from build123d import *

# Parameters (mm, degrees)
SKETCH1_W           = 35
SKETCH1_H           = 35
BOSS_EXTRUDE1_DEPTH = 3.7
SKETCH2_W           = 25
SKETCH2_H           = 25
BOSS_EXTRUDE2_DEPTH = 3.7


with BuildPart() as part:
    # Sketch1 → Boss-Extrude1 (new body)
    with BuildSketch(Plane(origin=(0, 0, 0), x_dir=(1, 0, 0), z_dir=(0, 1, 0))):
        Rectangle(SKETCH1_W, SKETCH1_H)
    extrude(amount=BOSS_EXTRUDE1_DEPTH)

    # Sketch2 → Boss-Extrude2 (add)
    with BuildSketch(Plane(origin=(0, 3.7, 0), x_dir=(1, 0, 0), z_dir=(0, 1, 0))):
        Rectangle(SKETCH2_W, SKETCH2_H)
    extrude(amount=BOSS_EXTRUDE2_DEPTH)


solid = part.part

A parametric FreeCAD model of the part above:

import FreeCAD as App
import Part
import Sketcher
Q = App.Units.Quantity

doc = App.newDocument("Part")
params = doc.addObject("Spreadsheet::Sheet", "Params")
for row, (alias, value) in enumerate([
    ("sketch1_width", "35 mm"),
    ("pad1_length", "3.7 mm"),
    ("sketch2_width", "25 mm"),
    ("pad2_length", "3.7 mm"),
], start=1):
    params.set(f"A{row}", alias)
    params.set(f"B{row}", "=" + value)
    params.setAlias(f"B{row}", alias)

body = doc.addObject("PartDesign::Body", "Body")

# Sketch on XZ plane
sketch1 = body.newObject("Sketcher::SketchObject", "Sketch")
sketch1.AttachmentSupport = (doc.getObject("XZ_Plane"), [""])
sketch1.MapMode = "FlatFace"
sketch1.addGeometry(Part.LineSegment(App.Vector(-18, -18, 0), App.Vector(-18, 18, 0)), False)
sketch1.addGeometry(Part.LineSegment(App.Vector(-18, 18, 0), App.Vector(18, 18, 0)), False)
sketch1.addGeometry(Part.LineSegment(App.Vector(18, 18, 0), App.Vector(18, -18, 0)), False)
sketch1.addGeometry(Part.LineSegment(App.Vector(18, -18, 0), App.Vector(-18, -18, 0)), False)
sketch1.addConstraint(Sketcher.Constraint("Coincident", 0, 2, 1, 1))
sketch1.addConstraint(Sketcher.Constraint("Coincident", 1, 2, 2, 1))
sketch1.addConstraint(Sketcher.Constraint("Coincident", 2, 2, 3, 1))
sketch1.addConstraint(Sketcher.Constraint("Coincident", 3, 2, 0, 1))
sketch1.addConstraint(Sketcher.Constraint("Vertical", 0))
sketch1.addConstraint(Sketcher.Constraint("Horizontal", 1))
sketch1.addConstraint(Sketcher.Constraint("Vertical", 2))
sketch1.addConstraint(Sketcher.Constraint("Horizontal", 3))
sketch1.addConstraint(Sketcher.Constraint("Symmetric", 0, 2, 2, 2, -1, 1))
sketch1.addConstraint(Sketcher.Constraint("Equal", 3, 0))
sketch1.addConstraint(Sketcher.Constraint("DistanceX", 1, 1, 1, 2, Q("35 mm")))
sketch1.setExpression("Constraints[10]", "Params.sketch1_width")
pad1 = body.newObject("PartDesign::Pad", "Pad")
pad1.Profile = sketch1
pad1.setExpression("Length", "Params.pad1_length")
pad1.Reversed = True

# Sketch on XZ plane
sketch2 = body.newObject("Sketcher::SketchObject", "Sketch001")
sketch2.AttachmentSupport = (doc.getObject("XZ_Plane"), [""])
sketch2.MapMode = "FlatFace"
sketch2.AttachmentOffset = App.Placement(App.Vector(0, 0, -3.7), App.Rotation())
sketch2.addGeometry(Part.LineSegment(App.Vector(-12, -12, 0), App.Vector(-12, 12, 0)), False)
sketch2.addGeometry(Part.LineSegment(App.Vector(-12, 12, 0), App.Vector(12, 12, 0)), False)
sketch2.addGeometry(Part.LineSegment(App.Vector(12, 12, 0), App.Vector(12, -12, 0)), False)
sketch2.addGeometry(Part.LineSegment(App.Vector(12, -12, 0), App.Vector(-12, -12, 0)), False)
sketch2.addConstraint(Sketcher.Constraint("Coincident", 0, 2, 1, 1))
sketch2.addConstraint(Sketcher.Constraint("Coincident", 1, 2, 2, 1))
sketch2.addConstraint(Sketcher.Constraint("Coincident", 2, 2, 3, 1))
sketch2.addConstraint(Sketcher.Constraint("Coincident", 3, 2, 0, 1))
sketch2.addConstraint(Sketcher.Constraint("Vertical", 0))
sketch2.addConstraint(Sketcher.Constraint("Horizontal", 1))
sketch2.addConstraint(Sketcher.Constraint("Vertical", 2))
sketch2.addConstraint(Sketcher.Constraint("Horizontal", 3))
sketch2.addConstraint(Sketcher.Constraint("Symmetric", 0, 2, 2, 2, -1, 1))
sketch2.addConstraint(Sketcher.Constraint("Equal", 3, 0))
sketch2.addConstraint(Sketcher.Constraint("DistanceX", 1, 1, 1, 2, Q("25 mm")))
sketch2.setExpression("Constraints[10]", "Params.sketch2_width")
pad2 = body.newObject("PartDesign::Pad", "Pad001")
pad2.Profile = sketch2
pad2.setExpression("Length", "Params.pad2_length")
pad2.Reversed = True

doc.recompute()
